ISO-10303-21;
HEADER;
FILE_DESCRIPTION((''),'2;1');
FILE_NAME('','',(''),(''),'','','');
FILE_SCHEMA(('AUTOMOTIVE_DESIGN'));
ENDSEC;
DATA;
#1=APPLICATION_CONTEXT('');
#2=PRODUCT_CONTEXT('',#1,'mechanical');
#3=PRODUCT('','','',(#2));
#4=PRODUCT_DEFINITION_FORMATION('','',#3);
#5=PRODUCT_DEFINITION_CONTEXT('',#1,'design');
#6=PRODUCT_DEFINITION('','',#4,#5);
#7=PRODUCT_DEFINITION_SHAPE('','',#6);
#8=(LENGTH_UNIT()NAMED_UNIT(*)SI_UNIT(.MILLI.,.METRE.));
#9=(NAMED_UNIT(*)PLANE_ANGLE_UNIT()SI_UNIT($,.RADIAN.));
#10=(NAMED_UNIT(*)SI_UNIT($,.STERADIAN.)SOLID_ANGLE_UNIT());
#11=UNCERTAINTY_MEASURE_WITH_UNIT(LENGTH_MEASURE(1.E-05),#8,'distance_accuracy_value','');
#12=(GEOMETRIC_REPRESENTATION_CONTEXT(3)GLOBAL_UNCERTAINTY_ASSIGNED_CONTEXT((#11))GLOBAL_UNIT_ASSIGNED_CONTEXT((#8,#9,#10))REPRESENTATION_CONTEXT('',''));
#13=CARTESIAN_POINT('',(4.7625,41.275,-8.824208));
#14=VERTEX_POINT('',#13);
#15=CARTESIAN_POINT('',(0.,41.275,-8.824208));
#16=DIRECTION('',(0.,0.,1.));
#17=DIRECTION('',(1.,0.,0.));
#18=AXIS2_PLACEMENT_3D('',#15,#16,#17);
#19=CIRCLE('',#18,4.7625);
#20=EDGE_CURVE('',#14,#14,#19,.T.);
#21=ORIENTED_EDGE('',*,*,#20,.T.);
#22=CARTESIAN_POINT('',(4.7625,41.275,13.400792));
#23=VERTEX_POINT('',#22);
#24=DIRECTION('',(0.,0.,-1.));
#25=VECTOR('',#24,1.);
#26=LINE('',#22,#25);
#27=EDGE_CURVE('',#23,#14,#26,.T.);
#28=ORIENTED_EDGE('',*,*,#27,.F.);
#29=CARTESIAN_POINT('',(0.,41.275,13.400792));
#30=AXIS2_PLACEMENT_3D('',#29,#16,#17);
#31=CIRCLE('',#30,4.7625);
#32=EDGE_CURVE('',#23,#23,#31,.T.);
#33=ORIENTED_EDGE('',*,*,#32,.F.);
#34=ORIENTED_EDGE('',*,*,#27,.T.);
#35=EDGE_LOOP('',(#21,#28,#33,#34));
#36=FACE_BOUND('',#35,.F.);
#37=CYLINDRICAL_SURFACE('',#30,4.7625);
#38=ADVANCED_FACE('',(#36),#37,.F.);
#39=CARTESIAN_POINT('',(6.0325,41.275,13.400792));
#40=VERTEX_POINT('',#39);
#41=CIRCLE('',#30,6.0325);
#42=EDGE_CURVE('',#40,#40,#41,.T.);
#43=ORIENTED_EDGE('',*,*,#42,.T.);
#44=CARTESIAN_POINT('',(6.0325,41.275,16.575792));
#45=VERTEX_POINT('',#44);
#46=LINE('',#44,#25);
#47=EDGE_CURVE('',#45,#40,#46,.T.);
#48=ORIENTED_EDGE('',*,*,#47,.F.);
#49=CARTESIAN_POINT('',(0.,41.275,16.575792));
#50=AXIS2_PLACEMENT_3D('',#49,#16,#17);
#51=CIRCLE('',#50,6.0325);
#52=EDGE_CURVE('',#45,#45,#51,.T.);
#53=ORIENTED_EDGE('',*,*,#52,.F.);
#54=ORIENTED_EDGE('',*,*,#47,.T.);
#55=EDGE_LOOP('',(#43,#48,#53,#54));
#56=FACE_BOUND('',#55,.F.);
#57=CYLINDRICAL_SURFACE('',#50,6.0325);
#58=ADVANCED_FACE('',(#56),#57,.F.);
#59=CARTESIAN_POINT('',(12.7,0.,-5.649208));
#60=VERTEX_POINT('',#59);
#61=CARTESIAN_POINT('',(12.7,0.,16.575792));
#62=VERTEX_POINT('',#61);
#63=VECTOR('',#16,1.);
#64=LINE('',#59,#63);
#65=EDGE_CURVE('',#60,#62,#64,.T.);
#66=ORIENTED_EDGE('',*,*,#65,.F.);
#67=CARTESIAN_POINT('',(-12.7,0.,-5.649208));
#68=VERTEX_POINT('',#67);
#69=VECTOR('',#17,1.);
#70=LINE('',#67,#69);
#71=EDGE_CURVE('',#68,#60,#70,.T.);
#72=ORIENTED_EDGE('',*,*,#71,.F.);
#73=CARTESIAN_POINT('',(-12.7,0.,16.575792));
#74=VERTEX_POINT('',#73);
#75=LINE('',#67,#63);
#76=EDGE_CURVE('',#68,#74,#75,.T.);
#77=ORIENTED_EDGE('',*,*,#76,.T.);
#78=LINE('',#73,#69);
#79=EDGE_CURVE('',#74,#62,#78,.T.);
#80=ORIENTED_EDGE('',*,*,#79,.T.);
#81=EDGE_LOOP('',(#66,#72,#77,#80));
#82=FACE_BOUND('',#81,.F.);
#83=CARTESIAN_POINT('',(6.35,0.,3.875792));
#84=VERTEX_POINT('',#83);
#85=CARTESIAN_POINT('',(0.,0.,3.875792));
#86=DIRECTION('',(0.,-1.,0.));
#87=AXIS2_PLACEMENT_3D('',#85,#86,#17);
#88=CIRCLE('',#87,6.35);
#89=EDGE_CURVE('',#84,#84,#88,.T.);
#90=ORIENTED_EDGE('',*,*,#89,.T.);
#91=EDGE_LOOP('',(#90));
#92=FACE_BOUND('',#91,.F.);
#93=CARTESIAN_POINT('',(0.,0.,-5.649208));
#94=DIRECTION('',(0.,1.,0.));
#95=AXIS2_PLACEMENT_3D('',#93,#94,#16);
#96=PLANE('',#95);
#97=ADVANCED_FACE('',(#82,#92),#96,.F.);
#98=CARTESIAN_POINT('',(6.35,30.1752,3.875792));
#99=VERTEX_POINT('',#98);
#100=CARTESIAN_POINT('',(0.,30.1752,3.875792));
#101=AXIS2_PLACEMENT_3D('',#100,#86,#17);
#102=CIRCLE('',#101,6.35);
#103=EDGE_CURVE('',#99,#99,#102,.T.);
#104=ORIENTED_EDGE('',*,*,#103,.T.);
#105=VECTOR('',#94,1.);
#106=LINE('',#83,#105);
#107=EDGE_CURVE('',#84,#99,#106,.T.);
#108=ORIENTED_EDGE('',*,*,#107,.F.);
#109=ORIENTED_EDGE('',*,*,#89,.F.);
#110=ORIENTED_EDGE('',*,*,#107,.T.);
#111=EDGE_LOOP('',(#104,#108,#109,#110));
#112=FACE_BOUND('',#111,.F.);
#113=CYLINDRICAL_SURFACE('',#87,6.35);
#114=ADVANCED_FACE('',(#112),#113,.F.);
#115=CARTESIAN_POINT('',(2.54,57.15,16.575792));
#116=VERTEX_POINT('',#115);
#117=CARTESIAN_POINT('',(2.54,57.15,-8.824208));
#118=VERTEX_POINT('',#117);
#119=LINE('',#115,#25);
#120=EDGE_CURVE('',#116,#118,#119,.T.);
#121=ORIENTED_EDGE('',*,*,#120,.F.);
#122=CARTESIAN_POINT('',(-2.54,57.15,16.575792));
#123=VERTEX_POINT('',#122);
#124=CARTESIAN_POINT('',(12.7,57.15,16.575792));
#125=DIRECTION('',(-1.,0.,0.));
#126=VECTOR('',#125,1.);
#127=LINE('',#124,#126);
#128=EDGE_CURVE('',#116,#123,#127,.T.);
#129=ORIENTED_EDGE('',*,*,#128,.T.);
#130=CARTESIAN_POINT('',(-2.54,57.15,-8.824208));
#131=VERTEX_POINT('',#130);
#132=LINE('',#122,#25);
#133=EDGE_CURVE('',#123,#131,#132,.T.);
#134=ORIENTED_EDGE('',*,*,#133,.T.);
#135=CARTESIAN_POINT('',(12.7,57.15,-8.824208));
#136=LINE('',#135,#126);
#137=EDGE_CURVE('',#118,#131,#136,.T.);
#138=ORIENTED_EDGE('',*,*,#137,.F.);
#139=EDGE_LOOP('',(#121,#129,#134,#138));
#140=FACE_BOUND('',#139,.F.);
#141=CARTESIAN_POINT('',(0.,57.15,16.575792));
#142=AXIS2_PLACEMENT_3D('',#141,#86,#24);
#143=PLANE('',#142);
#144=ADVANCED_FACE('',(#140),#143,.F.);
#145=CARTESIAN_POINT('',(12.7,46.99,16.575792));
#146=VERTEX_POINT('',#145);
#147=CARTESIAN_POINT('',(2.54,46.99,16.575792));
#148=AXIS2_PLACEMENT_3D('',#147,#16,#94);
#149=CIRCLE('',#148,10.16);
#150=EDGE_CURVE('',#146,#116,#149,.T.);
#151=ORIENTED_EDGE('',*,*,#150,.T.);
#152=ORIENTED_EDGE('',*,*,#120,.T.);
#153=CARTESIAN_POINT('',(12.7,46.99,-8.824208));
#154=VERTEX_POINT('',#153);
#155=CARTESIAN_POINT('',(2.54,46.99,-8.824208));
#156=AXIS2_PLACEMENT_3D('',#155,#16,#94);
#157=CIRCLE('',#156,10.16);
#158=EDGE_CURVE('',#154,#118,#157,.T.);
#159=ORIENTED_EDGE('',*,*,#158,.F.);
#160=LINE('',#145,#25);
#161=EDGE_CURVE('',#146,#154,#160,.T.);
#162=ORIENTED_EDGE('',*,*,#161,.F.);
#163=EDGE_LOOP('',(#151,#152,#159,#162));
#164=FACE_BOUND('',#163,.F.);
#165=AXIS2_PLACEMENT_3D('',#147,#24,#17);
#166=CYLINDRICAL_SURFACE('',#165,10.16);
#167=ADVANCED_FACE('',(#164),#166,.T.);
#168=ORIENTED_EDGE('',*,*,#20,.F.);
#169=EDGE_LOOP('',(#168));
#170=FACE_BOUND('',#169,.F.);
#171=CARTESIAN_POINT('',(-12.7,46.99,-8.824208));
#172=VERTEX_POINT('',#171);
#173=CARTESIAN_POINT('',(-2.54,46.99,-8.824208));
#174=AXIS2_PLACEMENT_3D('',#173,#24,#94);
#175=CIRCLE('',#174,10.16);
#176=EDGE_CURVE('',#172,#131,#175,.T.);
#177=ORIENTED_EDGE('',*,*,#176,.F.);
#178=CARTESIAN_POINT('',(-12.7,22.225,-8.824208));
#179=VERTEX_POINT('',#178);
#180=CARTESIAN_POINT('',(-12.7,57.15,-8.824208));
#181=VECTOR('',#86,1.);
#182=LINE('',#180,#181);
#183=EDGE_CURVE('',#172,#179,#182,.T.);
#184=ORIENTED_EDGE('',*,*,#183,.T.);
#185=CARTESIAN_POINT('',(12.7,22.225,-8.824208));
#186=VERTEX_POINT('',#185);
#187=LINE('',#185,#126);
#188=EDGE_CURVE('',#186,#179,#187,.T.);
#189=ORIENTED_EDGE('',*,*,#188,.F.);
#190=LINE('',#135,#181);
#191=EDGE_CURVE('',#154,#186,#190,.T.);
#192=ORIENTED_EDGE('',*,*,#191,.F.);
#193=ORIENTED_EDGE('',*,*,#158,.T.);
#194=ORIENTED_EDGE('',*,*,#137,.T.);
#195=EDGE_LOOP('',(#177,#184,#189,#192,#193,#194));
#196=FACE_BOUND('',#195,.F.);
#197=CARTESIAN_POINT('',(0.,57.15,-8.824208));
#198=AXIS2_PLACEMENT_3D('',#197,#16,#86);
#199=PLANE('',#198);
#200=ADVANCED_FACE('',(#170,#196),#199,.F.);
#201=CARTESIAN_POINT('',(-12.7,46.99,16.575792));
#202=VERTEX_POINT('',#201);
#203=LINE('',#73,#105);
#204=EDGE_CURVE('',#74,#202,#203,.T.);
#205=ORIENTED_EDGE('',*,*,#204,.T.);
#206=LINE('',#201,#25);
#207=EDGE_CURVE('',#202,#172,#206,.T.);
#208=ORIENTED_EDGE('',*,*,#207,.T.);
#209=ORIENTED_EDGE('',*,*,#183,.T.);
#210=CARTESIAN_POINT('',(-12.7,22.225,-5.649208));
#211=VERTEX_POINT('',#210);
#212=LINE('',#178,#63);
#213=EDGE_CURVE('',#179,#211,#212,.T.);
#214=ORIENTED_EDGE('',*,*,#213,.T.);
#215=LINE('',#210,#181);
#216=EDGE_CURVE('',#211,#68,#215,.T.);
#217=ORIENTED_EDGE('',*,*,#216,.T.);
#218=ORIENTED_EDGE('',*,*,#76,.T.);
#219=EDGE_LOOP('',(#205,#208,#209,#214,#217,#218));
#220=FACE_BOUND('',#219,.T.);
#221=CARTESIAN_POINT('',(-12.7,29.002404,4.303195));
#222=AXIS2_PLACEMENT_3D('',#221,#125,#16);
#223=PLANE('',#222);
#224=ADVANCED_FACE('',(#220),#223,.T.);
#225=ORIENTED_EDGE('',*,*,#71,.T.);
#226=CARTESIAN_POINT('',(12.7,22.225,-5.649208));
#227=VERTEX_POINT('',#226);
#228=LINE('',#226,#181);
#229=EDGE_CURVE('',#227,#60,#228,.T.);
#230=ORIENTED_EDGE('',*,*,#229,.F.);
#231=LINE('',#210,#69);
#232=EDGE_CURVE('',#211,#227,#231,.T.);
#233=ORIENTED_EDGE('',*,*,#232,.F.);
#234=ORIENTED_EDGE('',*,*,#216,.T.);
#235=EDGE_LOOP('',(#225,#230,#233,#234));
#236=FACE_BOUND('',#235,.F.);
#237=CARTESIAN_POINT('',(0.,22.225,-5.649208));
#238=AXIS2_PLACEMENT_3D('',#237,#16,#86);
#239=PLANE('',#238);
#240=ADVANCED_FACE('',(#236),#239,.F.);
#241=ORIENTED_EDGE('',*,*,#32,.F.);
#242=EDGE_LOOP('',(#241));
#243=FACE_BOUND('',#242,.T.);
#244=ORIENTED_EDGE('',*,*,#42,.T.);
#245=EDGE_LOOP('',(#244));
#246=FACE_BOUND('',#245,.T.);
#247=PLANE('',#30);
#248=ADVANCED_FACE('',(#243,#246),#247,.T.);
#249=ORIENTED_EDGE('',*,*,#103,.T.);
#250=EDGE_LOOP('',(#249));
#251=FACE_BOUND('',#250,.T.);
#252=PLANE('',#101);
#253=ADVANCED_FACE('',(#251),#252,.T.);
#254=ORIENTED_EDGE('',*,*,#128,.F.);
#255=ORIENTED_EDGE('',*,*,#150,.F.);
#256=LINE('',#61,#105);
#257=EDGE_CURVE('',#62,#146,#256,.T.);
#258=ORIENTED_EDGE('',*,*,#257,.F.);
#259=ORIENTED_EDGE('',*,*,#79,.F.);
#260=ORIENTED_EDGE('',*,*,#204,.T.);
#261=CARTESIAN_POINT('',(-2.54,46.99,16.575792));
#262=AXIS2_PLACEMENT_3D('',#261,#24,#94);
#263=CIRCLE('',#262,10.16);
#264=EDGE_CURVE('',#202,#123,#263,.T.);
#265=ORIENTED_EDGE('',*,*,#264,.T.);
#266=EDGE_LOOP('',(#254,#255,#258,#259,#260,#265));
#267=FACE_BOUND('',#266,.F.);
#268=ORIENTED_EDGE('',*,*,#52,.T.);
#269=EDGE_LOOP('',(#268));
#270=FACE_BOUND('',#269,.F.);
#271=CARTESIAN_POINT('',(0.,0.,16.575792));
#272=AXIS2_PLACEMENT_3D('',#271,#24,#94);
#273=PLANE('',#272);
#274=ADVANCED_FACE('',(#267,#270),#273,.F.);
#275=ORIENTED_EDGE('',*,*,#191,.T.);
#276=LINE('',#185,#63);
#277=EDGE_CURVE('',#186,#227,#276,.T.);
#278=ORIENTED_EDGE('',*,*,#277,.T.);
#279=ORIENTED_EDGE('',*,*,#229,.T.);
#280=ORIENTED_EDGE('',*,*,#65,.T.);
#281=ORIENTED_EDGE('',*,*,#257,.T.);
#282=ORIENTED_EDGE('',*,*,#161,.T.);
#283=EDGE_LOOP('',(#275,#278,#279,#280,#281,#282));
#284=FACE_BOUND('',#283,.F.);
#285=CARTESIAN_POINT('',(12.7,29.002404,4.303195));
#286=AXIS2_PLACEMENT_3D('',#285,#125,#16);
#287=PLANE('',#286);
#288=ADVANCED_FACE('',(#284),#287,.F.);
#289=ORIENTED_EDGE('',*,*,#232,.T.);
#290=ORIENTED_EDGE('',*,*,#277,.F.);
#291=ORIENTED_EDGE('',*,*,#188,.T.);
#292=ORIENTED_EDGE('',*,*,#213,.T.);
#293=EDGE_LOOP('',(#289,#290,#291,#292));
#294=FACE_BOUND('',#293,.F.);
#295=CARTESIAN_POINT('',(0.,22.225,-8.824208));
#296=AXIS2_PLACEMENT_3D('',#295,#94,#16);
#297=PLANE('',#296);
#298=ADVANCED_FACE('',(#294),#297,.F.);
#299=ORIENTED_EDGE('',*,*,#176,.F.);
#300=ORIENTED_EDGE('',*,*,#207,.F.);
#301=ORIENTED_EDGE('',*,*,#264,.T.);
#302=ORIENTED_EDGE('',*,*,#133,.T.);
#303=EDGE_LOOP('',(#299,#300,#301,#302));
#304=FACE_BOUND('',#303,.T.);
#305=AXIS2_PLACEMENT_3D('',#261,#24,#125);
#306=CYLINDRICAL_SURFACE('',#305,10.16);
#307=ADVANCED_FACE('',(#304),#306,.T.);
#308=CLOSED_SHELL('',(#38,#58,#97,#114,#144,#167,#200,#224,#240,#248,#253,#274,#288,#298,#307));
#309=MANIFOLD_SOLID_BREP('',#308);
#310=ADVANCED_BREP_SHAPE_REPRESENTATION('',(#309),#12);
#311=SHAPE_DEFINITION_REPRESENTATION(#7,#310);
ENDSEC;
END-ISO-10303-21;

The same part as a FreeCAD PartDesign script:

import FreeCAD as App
import Part
import Sketcher
Q = App.Units.Quantity


def edges_at(feature, points):
    """Names of the edges that pass closest to the given points."""
    edges = feature.Shape.Edges
    near = lambda p: min(range(len(edges)), key=lambda i: edges[i].distToShape(Part.Vertex(*p))[0])
    return sorted({f"Edge{near(p) + 1}" for p in points})


def add_polygon(sketch, points):
    """Adds a closed chain of lines whose ends are joined by coincident constraints."""
    first, n = sketch.GeometryCount, len(points)
    for a, b in zip(points, points[1:] + points[:1]):
        sketch.addGeometry(Part.LineSegment(App.Vector(*a, 0), App.Vector(*b, 0)), False)
    for i in range(n):
        sketch.addConstraint(Sketcher.Constraint("Coincident", first + i, 2, first + (i + 1) % n, 1))

doc = App.newDocument("Part")
params = doc.addObject("Spreadsheet::Sheet", "Params")
for row, (alias, value) in enumerate([
    ("sketch1_height", "1 in"),
    ("sketch1_width", "2.25 in"),
    ("sketch1_width2", "0.875 in"),
    ("pad1_length", "1 in"),
    ("sketch2_diameter", "0.475 in"),
    ("pocket1_length", "0.125 in"),
    ("sketch3_diameter", "0.375 in"),
    ("fillet_radius", "0.4 in"),
    ("sketch4_diameter", "0.5 in"),
    ("pocket3_length", "1.188 in"),
], start=1):
    params.set(f"A{row}", alias)
    params.set(f"B{row}", "=" + value)
    params.setAlias(f"B{row}", alias)

body = doc.addObject("PartDesign::Body", "Body")

# Sketch on YZ plane
sketch1 = doc.addObject("Sketcher::SketchObject", "Sketch")
body.addObject(sketch1)
sketch1.AttachmentSupport = (doc.YZ_Plane, [""])
sketch1.MapMode = "FlatFace"
add_polygon(sketch1, [(57.1, 16.6), (0, 16.6), (0, -5.6), (22.2, -5.6), (22.2, -8.8), (57.1, -8.8)])  # lines 0-5
sketch1.addConstraint([
    Sketcher.Constraint("Horizontal", 0),
    Sketcher.Constraint("Vertical", 1),
    Sketcher.Constraint("Horizontal", 2),
    Sketcher.Constraint("Vertical", 3),
    Sketcher.Constraint("Horizontal", 4),
    Sketcher.Constraint("Vertical", 5),
    Sketcher.Constraint("PointOnObject", 0, 2, -2),
    Sketcher.Constraint("Equal", 2, 1),
    Sketcher.Constraint("DistanceY", 5, 1, 5, 2, Q("1 in")),
    Sketcher.Constraint("DistanceX", 0, 2, 0, 1, Q("2.25 in")),
    Sketcher.Constraint("DistanceX", 2, 1, 2, 2, Q("0.875 in")),
    Sketcher.Constraint("DistanceY", -1, 1, 0, 2, 16.575792),
])
sketch1.setExpression("Constraints[14]", "Params.sketch1_height")
sketch1.setExpression("Constraints[15]", "Params.sketch1_width")
sketch1.setExpression("Constraints[16]", "Params.sketch1_width2")
pad1 = doc.addObject("PartDesign::Pad", "Pad")
body.addObject(pad1)
pad1.Profile = sketch1
pad1.setExpression("Length", "Params.pad1_length")
pad1.Midplane = True

# Sketch on XY plane
sketch2 = doc.addObject("Sketcher::SketchObject", "Sketch001")
body.addObject(sketch2)
sketch2.AttachmentSupport = (doc.XY_Plane, [""])
sketch2.MapMode = "FlatFace"
sketch2.AttachmentOffset = App.Placement(App.Vector(0, 0, 16.575792), App.Rotation())
sketch2.addGeometry(Part.Circle(App.Vector(0, 41, 0), App.Vector(0, 0, 1), 6), False)
sketch2.addConstraint([
    Sketcher.Constraint("PointOnObject", 0, 3, -2),
    Sketcher.Constraint("Diameter", 0, Q("0.475 in")),
    Sketcher.Constraint("DistanceY", -1, 1, 0, 3, Q("1.625 in")),
])
sketch2.setExpression("Constraints[1]", "Params.sketch2_diameter")
pocket1 = doc.addObject("PartDesign::Pocket", "Pocket")
body.addObject(pocket1)
pocket1.Profile = sketch2
pocket1.setExpression("Length", "Params.pocket1_length")

# Sketch on XY plane
sketch3 = doc.addObject("Sketcher::SketchObject", "Sketch002")
body.addObject(sketch3)
sketch3.AttachmentSupport = (doc.XY_Plane, [""])
sketch3.MapMode = "FlatFace"
sketch3.AttachmentOffset = App.Placement(App.Vector(0, 0, 13.400792), App.Rotation())
sketch3.addGeometry(Part.Circle(App.Vector(0, 41.3, 0), App.Vector(0, 0, 1), 4.8), False)
sketch3.addConstraint([
    Sketcher.Constraint("PointOnObject", 0, 3, -2),
    Sketcher.Constraint("Diameter", 0, Q("0.375 in")),
    Sketcher.Constraint("DistanceY", -1, 1, 0, 3, Q("1.625 in")),
])
sketch3.setExpression("Constraints[1]", "Params.sketch3_diameter")
pocket2 = doc.addObject("PartDesign::Pocket", "Pocket001")
body.addObject(pocket2)
pocket2.Profile = sketch3
pocket2.Type = "ThroughAll"
doc.recompute()

fillet = doc.addObject("PartDesign::Fillet", "Fillet")
body.addObject(fillet)
fillet.Base = (pocket2, edges_at(pocket2, [(12.7, 57.15, 3.876), (-12.7, 57.15, 3.876)]))
fillet.setExpression("Radius", "Params.fillet_radius")

# Sketch on XZ plane
sketch4 = doc.addObject("Sketcher::SketchObject", "Sketch003")
body.addObject(sketch4)
sketch4.AttachmentSupport = (doc.XZ_Plane, [""])
sketch4.MapMode = "FlatFace"
sketch4.addGeometry(Part.Circle(App.Vector(0, 4, 0), App.Vector(0, 0, 1), 6), False)
sketch4.addConstraint([
    Sketcher.Constraint("PointOnObject", 0, 3, -2),
    Sketcher.Constraint("Diameter", 0, Q("0.5 in")),
    Sketcher.Constraint("DistanceY", -1, 1, 0, 3, 3.875792),
])
sketch4.setExpression("Constraints[1]", "Params.sketch4_diameter")
pocket3 = doc.addObject("PartDesign::Pocket", "Pocket002")
body.addObject(pocket3)
pocket3.Profile = sketch4
pocket3.setExpression("Length", "Params.pocket3_length")

doc.recompute()
